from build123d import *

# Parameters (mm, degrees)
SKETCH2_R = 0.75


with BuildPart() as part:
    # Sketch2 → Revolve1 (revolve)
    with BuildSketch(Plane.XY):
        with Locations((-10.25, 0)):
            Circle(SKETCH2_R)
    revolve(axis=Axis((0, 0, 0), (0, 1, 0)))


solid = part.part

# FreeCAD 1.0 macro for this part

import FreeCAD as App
import Part
import Sketcher

V = App.Vector
Q = App.Units.Quantity

doc = App.newDocument("Part")
params = doc.addObject("Spreadsheet::Sheet", "Params")
for row, (alias, value) in enumerate([
    ("sketch1_diameter", "1.5 mm"),
    ("revolution_angle", "360 deg"),
], start=1):
    params.set(f"A{row}", alias)
    params.set(f"B{row}", "=" + value)
    params.setAlias(f"B{row}", alias)

body = doc.addObject("PartDesign::Body", "Body")

# Sketch on XY plane
sketch1 = body.newObject("Sketcher::SketchObject", "Sketch")
sketch1.AttachmentSupport = (doc.getObject("XY_Plane"), [""])
sketch1.MapMode = "FlatFace"
sketch1.addGeometry(Part.Circle(V(-10.2, 0, 0), V(0, 0, 1), 0.8), False)
sketch1.addConstraint([
    Sketcher.Constraint("PointOnObject", 0, 3, -1),
    Sketcher.Constraint("Diameter", 0, Q("1.5 mm")),
    Sketcher.Constraint("DistanceX", 0, 3, -1, 1, Q("10.25 mm")),
])
sketch1.setExpression("Constraints[1]", "Params.sketch1_diameter")
revolution = body.newObject("PartDesign::Revolution", "Revolution")
revolution.Profile = sketch1
revolution.ReferenceAxis = (sketch1, ["V_Axis"])
revolution.setExpression("Angle", "Params.revolution_angle")

doc.recompute()
